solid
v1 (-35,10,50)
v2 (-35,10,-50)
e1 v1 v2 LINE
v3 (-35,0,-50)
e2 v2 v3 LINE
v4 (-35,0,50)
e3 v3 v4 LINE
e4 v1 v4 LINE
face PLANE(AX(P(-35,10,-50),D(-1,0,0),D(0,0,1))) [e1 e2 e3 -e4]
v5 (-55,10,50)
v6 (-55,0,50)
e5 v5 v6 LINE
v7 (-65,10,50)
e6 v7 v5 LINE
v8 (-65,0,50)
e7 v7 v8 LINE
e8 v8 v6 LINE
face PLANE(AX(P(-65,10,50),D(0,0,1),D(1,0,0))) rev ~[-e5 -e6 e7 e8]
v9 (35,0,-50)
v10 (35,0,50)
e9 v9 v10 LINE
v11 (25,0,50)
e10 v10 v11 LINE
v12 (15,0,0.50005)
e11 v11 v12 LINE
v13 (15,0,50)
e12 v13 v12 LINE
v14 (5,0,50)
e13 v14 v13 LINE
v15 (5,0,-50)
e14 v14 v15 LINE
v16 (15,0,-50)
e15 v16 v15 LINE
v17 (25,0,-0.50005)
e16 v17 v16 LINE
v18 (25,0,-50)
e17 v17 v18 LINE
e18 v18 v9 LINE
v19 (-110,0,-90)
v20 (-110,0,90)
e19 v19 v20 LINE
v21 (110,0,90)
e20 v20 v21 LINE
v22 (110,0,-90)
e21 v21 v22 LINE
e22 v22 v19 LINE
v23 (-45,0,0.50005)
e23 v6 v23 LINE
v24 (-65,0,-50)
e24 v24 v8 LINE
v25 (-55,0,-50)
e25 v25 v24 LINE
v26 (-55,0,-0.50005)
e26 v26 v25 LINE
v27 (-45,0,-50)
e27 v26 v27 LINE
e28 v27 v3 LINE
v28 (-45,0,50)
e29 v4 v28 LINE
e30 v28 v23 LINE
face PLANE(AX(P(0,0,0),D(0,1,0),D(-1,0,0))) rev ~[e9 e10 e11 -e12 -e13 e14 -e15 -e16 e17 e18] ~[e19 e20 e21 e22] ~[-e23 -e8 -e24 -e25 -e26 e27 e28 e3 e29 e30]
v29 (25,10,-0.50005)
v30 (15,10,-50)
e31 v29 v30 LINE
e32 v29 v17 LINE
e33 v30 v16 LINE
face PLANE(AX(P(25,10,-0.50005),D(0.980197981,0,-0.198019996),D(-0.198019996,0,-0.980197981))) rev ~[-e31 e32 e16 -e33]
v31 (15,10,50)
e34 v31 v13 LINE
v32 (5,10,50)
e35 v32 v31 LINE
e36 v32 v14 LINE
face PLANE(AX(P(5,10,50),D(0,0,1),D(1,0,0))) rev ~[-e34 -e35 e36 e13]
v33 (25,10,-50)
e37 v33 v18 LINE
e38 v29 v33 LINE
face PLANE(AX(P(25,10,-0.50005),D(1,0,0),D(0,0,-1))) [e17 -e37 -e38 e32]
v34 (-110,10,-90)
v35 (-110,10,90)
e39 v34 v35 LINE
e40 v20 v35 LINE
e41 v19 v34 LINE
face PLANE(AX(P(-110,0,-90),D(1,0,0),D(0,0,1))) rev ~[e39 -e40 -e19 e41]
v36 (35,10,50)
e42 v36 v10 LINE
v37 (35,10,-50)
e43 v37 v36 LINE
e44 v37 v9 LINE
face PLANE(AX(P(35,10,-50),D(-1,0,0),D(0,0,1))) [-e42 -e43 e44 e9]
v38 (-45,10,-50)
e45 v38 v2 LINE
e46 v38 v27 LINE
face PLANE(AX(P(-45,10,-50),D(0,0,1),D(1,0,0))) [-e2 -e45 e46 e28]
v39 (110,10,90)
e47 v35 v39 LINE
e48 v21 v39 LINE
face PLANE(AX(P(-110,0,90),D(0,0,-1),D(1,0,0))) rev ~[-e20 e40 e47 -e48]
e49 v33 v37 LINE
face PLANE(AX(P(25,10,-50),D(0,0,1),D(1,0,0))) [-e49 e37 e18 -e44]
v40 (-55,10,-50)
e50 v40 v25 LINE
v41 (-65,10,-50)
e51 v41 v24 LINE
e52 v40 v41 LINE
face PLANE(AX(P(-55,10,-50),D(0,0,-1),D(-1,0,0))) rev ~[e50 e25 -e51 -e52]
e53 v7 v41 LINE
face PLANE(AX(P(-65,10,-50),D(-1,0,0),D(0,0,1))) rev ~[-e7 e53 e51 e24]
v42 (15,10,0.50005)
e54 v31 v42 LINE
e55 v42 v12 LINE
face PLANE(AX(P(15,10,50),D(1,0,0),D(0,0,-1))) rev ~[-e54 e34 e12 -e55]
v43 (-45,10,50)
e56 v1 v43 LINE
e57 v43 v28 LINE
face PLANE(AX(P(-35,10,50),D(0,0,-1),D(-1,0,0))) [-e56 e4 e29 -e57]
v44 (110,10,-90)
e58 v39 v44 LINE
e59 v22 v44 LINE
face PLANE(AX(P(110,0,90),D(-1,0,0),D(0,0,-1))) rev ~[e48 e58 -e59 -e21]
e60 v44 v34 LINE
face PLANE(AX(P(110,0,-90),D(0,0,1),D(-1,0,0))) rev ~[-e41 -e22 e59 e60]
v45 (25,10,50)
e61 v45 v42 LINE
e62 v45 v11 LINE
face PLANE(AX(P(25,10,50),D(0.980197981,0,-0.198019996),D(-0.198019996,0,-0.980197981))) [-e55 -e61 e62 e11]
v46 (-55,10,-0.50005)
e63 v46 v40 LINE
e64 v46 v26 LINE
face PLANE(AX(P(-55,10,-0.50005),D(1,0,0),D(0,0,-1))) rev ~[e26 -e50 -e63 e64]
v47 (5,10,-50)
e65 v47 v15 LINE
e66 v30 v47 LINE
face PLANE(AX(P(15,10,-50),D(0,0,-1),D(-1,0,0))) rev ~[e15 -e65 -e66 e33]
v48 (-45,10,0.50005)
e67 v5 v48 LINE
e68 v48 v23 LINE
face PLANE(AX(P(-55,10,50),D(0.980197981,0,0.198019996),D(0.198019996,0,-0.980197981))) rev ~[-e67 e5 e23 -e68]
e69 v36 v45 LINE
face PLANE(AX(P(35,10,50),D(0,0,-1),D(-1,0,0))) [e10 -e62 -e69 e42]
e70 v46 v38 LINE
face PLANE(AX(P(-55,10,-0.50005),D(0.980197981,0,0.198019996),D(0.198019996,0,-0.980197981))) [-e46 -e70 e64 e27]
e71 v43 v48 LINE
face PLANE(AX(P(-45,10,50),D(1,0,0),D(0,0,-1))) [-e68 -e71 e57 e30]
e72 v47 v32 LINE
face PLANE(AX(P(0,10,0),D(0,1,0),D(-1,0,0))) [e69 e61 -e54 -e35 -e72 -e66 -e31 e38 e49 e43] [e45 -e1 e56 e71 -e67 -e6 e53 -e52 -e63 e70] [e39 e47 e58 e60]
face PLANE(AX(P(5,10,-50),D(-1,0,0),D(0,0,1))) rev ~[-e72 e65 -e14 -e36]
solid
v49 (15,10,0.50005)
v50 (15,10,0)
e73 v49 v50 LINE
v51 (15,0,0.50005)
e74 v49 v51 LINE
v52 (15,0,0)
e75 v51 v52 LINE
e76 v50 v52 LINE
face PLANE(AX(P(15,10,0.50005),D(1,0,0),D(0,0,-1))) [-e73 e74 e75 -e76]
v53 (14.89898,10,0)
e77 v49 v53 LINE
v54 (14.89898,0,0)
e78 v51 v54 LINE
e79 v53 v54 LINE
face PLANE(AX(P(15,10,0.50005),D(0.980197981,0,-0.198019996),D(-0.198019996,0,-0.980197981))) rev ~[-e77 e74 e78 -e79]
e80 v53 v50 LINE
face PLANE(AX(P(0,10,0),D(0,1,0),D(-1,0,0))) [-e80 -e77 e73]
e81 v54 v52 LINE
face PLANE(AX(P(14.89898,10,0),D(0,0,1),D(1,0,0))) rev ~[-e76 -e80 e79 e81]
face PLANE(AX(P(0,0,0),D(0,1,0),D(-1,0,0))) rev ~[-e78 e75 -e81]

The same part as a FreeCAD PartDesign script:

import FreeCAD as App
import Part
import Sketcher
from FreeCAD import Vector
Q = App.Units.Quantity

doc = App.newDocument("Part")
body = doc.addObject("PartDesign::Body", "Body")
body.AllowCompound = True

sketch1 = body.newObject("Sketcher::SketchObject", "Sketch")
sketch1.AttachmentSupport = (doc.getObject("XZ_Plane"), [""])
sketch1.MapMode = "FlatFace"
sketch1.addGeometry([
    Part.LineSegment(Vector(-110, -90, 0), Vector(-110, 90, 0)),
    Part.LineSegment(Vector(-110, 90, 0), Vector(110, 90, 0)),
    Part.LineSegment(Vector(110, 90, 0), Vector(110, -90, 0)),
    Part.LineSegment(Vector(110, -90, 0), Vector(-110, -90, 0)),
], False)
sketch1.addConstraint([
    Sketcher.Constraint("Coincident", 0, 2, 1, 1),
    Sketcher.Constraint("Coincident", 1, 2, 2, 1),
    Sketcher.Constraint("Coincident", 2, 2, 3, 1),
    Sketcher.Constraint("Coincident", 3, 2, 0, 1),
    Sketcher.Constraint("Vertical", 0),
    Sketcher.Constraint("Horizontal", 1),
    Sketcher.Constraint("Vertical", 2),
    Sketcher.Constraint("Horizontal", 3),
    Sketcher.Constraint("Symmetric", 0, 2, 2, 2, -1, 1),
    Sketcher.Constraint("DistanceX", 1, 1, 1, 2, Q("220 mm")),
    Sketcher.Constraint("DistanceY", 0, 1, 0, 2, Q("180 mm")),
])
pad1 = body.newObject("PartDesign::Pad", "Pad")
pad1.Profile = sketch1
pad1.Length = 10
pad1.Reversed = True

sketch2 = body.newObject("Sketcher::SketchObject", "Sketch001")
sketch2.AttachmentSupport = (doc.getObject("XZ_Plane"), [""])
sketch2.MapMode = "FlatFace"
sketch2.AttachmentOffset = App.Placement(Vector(0, 0, -10), App.Rotation())
sketch2.addGeometry([
    Part.LineSegment(Vector(-65, -50, 0), Vector(-65, 50, 0)),
    Part.LineSegment(Vector(-65, 50, 0), Vector(-55, 50, 0)),
    Part.LineSegment(Vector(-55, 50, 0), Vector(-45, 0.5, 0)),
    Part.LineSegment(Vector(-45, 0.5, 0), Vector(-45, 50, 0)),
    Part.LineSegment(Vector(-45, 50, 0), Vector(-35, 50, 0)),
    Part.LineSegment(Vector(-35, 50, 0), Vector(-35, -50, 0)),
    Part.LineSegment(Vector(-35, -50, 0), Vector(-45, -50, 0)),
    Part.LineSegment(Vector(-45, -50, 0), Vector(-55, -0.5, 0)),
    Part.LineSegment(Vector(-55, -0.5, 0), Vector(-55, -50, 0)),
    Part.LineSegment(Vector(-55, -50, 0), Vector(-65, -50, 0)),
    Part.LineSegment(Vector(15, 0.5, 0), Vector(25, 50, 0)),
    Part.LineSegment(Vector(25, 50, 0), Vector(35, 50, 0)),
    Part.LineSegment(Vector(35, 50, 0), Vector(35, -50, 0)),
    Part.LineSegment(Vector(35, -50, 0), Vector(25, -50, 0)),
    Part.LineSegment(Vector(25, -50, 0), Vector(25, -0.5, 0)),
    Part.LineSegment(Vector(25, -0.5, 0), Vector(15, -50, 0)),
    Part.LineSegment(Vector(15, -50, 0), Vector(5, -50, 0)),
    Part.LineSegment(Vector(5, -50, 0), Vector(5, 50, 0)),
    Part.LineSegment(Vector(5, 50, 0), Vector(15, 50, 0)),
    Part.LineSegment(Vector(15, 50, 0), Vector(15, 0.5, 0)),
    Part.LineSegment(Vector(15, 0.5, 0), Vector(14.9, 0, 0)),
    Part.LineSegment(Vector(14.9, 0, 0), Vector(15, 0, 0)),
    Part.LineSegment(Vector(15, 0, 0), Vector(15, 0.5, 0)),
], False)
sketch2.addConstraint([
    Sketcher.Constraint("Coincident", 0, 2, 1, 1),
    Sketcher.Constraint("Coincident", 1, 2, 2, 1),
    Sketcher.Constraint("Coincident", 2, 2, 3, 1),
    Sketcher.Constraint("Coincident", 3, 2, 4, 1),
    Sketcher.Constraint("Coincident", 4, 2, 5, 1),
    Sketcher.Constraint("Coincident", 5, 2, 6, 1),
    Sketcher.Constraint("Coincident", 6, 2, 7, 1),
    Sketcher.Constraint("Coincident", 7, 2, 8, 1),
    Sketcher.Constraint("Coincident", 8, 2, 9, 1),
    Sketcher.Constraint("Coincident", 9, 2, 0, 1),
    Sketcher.Constraint("Coincident", 10, 2, 11, 1),
    Sketcher.Constraint("Coincident", 11, 2, 12, 1),
    Sketcher.Constraint("Coincident", 12, 2, 13, 1),
    Sketcher.Constraint("Coincident", 13, 2, 14, 1),
    Sketcher.Constraint("Coincident", 14, 2, 15, 1),
    Sketcher.Constraint("Coincident", 15, 2, 16, 1),
    Sketcher.Constraint("Coincident", 16, 2, 17, 1),
    Sketcher.Constraint("Coincident", 17, 2, 18, 1),
    Sketcher.Constraint("Coincident", 18, 2, 19, 1),
    Sketcher.Constraint("Coincident", 19, 2, 10, 1),
    Sketcher.Constraint("Coincident", 20, 2, 21, 1),
    Sketcher.Constraint("Coincident", 21, 2, 22, 1),
    Sketcher.Constraint("Coincident", 22, 2, 20, 1),
    Sketcher.Constraint("Vertical", 0),
    Sketcher.Constraint("Horizontal", 1),
    Sketcher.Constraint("Vertical", 3),
    Sketcher.Constraint("Horizontal", 4),
    Sketcher.Constraint("Vertical", 5),
    Sketcher.Constraint("Horizontal", 6),
    Sketcher.Constraint("Vertical", 8),
    Sketcher.Constraint("Horizontal", 9),
    Sketcher.Constraint("Horizontal", 11),
    Sketcher.Constraint("Vertical", 12),
    Sketcher.Constraint("Horizontal", 13),
    Sketcher.Constraint("Vertical", 14),
    Sketcher.Constraint("Horizontal", 16),
    Sketcher.Constraint("Vertical", 17),
    Sketcher.Constraint("Horizontal", 18),
    Sketcher.Constraint("Vertical", 19),
    Sketcher.Constraint("Horizontal", 21),
    Sketcher.Constraint("Vertical", 22),
    Sketcher.Constraint("Coincident", 22, 2, 19, 2),
    Sketcher.Constraint("Symmetric", 5, 2, 11, 2, -1, 1),
    Sketcher.Constraint("Symmetric", 3, 2, 6, 2, -1),
    Sketcher.Constraint("Symmetric", 1, 2, 8, 2, -1),
    Sketcher.Constraint("Symmetric", 10, 2, 13, 2, -1),
    Sketcher.Constraint("Symmetric", 15, 2, 18, 2, -1),
    Sketcher.Constraint("PointOnObject", 20, 2, -1),
    Sketcher.Constraint("Parallel", 2, 7),
    Sketcher.Constraint("Parallel", 10, 15),
    Sketcher.Constraint("Parallel", 15, 20),
    Sketcher.Constraint("Horizontal", 1, 2, 3, 2),
    Sketcher.Constraint("Horizontal", 7, 2, 14, 2),
    Sketcher.Constraint("Horizontal", 13, 2, 15, 2),
    Sketcher.Constraint("Equal", 1, 4),
    Sketcher.Constraint("Equal", 9, 11),
    Sketcher.Constraint("Equal", 13, 16),
    Sketcher.Constraint("Equal", 7, 10),
    Sketcher.Constraint("DistanceX", 1, 1, 1, 2, Q("10 mm")),
    Sketcher.Constraint("DistanceY", 0, 1, 0, 2, Q("100 mm")),
    Sketcher.Constraint("DistanceX", 1, 2, 2, 2, Q("10 mm")),
    Sketcher.Constraint("DistanceX", 9, 2, 12, 2, Q("100 mm")),
    Sketcher.Constraint("DistanceY", 3, 1, 3, 2, Q("49.5 mm")),
])
pocket1 = body.newObject("PartDesign::Pocket", "Pocket")
pocket1.Profile = sketch2
pocket1.Length = 10
pocket1.Reversed = True

doc.recompute()
